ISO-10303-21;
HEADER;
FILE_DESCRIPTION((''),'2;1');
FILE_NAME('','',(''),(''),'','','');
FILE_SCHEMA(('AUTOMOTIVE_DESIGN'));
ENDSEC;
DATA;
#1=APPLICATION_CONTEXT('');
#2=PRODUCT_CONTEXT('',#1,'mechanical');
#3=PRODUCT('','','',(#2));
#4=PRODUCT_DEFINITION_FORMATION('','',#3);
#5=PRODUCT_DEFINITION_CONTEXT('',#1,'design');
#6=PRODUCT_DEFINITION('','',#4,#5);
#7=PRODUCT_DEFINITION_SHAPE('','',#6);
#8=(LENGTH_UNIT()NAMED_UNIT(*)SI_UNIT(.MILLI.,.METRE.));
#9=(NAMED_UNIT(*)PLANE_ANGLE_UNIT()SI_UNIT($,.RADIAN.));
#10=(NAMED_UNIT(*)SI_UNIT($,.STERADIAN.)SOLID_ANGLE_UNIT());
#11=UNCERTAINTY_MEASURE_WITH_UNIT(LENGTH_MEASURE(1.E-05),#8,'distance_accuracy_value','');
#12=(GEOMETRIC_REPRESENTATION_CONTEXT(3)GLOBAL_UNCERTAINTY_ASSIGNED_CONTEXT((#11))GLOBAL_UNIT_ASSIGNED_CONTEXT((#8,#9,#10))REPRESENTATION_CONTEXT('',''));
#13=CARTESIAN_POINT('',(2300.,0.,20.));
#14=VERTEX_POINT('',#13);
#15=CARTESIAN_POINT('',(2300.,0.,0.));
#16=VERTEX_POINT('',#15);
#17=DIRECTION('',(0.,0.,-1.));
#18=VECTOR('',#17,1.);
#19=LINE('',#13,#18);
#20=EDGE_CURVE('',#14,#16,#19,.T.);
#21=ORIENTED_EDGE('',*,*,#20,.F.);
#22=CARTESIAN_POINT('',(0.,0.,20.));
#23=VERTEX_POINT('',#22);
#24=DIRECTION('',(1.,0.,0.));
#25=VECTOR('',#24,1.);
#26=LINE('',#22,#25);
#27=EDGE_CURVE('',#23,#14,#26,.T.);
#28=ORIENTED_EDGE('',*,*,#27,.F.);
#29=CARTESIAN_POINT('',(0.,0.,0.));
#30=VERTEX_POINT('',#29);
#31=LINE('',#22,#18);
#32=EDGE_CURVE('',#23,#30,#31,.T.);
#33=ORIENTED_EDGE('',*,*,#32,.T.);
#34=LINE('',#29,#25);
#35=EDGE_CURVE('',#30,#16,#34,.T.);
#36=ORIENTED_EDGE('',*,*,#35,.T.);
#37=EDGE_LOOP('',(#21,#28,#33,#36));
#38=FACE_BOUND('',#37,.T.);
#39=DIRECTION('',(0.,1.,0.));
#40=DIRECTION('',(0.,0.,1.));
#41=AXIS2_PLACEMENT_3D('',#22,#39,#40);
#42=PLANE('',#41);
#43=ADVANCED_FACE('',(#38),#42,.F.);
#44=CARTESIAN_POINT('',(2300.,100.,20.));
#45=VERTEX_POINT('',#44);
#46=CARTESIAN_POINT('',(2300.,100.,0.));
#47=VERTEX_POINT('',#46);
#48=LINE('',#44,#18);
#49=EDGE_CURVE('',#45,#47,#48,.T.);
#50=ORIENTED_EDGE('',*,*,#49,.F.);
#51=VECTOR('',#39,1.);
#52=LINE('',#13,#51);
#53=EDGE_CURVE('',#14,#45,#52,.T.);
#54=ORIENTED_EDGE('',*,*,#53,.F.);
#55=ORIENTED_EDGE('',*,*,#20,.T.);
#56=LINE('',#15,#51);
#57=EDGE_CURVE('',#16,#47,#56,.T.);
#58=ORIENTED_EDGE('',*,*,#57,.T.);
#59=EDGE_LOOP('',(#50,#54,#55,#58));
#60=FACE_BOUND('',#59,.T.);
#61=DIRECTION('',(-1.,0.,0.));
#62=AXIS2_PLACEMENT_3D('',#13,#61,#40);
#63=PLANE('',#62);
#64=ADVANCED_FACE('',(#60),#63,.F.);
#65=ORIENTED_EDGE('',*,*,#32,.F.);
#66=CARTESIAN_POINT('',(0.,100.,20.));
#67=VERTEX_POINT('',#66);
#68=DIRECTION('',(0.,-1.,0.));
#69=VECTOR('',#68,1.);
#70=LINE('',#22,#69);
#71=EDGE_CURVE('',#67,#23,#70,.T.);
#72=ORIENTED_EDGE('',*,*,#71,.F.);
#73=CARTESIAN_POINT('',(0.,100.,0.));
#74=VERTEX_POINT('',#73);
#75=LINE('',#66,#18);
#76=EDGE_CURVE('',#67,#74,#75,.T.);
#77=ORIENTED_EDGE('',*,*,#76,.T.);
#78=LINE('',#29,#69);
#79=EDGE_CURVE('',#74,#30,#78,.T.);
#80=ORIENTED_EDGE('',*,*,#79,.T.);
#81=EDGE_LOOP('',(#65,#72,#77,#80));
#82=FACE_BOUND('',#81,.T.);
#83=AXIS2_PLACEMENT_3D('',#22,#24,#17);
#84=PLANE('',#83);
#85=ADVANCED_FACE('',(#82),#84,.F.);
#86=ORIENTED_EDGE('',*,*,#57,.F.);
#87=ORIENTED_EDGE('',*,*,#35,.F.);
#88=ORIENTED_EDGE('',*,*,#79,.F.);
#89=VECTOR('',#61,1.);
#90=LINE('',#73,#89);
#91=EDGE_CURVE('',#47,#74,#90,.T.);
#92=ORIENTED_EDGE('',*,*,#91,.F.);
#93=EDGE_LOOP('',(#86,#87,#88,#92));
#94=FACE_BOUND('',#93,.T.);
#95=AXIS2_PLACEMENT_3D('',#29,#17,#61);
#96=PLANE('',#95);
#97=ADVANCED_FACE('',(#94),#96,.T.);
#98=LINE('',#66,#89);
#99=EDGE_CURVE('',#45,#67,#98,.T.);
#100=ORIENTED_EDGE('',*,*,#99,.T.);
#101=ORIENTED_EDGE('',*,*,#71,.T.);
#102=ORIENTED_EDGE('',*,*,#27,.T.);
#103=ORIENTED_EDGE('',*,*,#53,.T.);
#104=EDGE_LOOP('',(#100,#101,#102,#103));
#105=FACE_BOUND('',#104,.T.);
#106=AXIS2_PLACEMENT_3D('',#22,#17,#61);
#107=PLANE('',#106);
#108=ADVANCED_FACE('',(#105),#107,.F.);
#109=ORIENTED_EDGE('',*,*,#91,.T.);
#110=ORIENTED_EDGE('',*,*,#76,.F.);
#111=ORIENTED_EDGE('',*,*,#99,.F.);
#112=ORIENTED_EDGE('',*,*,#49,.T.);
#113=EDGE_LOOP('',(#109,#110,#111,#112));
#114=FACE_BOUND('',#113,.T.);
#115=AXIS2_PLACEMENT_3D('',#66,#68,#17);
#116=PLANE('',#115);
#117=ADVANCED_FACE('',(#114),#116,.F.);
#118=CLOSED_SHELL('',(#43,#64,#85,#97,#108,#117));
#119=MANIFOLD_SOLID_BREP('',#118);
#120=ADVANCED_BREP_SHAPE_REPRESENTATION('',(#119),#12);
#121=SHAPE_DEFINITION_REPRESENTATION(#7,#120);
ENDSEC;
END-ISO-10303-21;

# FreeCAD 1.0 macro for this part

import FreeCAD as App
import Part
import Sketcher

V = App.Vector
Q = App.Units.Quantity


def add_polygon(sketch, points):
    """Adds a closed chain of lines whose ends are joined by coincident constraints."""
    first, n = sketch.GeometryCount, len(points)
    for a, b in zip(points, points[1:] + points[:1]):
        sketch.addGeometry(Part.LineSegment(App.Vector(*a, 0), App.Vector(*b, 0)), False)
    for i in range(n):
        sketch.addConstraint(Sketcher.Constraint("Coincident", first + i, 2, first + (i + 1) % n, 1))

doc = App.newDocument("Part")
body = doc.addObject("PartDesign::Body", "Body")

# Sketch on XY plane
sketch1 = body.newObject("Sketcher::SketchObject", "Sketch")
sketch1.AttachmentSupport = (doc.getObject("XY_Plane"), [""])
sketch1.MapMode = "FlatFace"
add_polygon(sketch1, [(0, 100), (0, 0), (2300, 0), (2300, 100)])  # lines 0-3
sketch1.addConstraint([
    Sketcher.Constraint("Vertical", 0),
    Sketcher.Constraint("Horizontal", 1),
    Sketcher.Constraint("Vertical", 2),
    Sketcher.Constraint("Horizontal", 3),
    Sketcher.Constraint("Coincident", 0, 2, -1, 1),
    Sketcher.Constraint("DistanceX", 1, 1, 1, 2, Q("2300 mm")),
    Sketcher.Constraint("DistanceY", 0, 2, 0, 1, Q("100 mm")),
])
pad1 = body.newObject("PartDesign::Pad", "Pad")
pad1.Profile = sketch1
pad1.Length = 20

doc.recompute()
